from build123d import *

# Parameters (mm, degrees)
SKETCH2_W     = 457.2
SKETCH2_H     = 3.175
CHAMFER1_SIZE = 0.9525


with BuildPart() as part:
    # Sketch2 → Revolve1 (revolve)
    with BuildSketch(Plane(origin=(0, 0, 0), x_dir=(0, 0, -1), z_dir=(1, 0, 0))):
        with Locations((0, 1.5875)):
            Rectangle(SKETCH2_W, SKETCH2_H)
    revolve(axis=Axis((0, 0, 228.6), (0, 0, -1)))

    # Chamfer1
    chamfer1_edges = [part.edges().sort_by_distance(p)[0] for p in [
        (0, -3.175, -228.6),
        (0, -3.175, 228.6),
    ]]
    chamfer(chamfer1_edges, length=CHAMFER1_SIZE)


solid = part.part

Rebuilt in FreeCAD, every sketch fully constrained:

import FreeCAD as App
import Part
import Sketcher
Q = App.Units.Quantity


def edges_at(feature, points):
    """Names of the edges that pass closest to the given points."""
    edges = feature.Shape.Edges
    near = lambda p: min(range(len(edges)), key=lambda i: edges[i].distToShape(Part.Vertex(*p))[0])
    return sorted({f"Edge{near(p) + 1}" for p in points})

doc = App.newDocument("Part")
body = doc.addObject("PartDesign::Body", "Body")

# Sketch on YZ plane
sketch1 = body.newObject("Sketcher::SketchObject", "Sketch")
sketch1.AttachmentSupport = (doc.getObject("YZ_Plane"), [""])
sketch1.MapMode = "FlatFace"
sketch1.addGeometry(Part.LineSegment(App.Vector(3.2, 228.6, 0), App.Vector(0, 228.6, 0)), False)
sketch1.addGeometry(Part.LineSegment(App.Vector(0, 228.6, 0), App.Vector(0, -228.6, 0)), False)
sketch1.addGeometry(Part.LineSegment(App.Vector(0, -228.6, 0), App.Vector(3.2, -228.6, 0)), False)
sketch1.addGeometry(Part.LineSegment(App.Vector(3.2, -228.6, 0), App.Vector(3.2, 228.6, 0)), False)
sketch1.addConstraint(Sketcher.Constraint("Coincident", 0, 2, 1, 1))
sketch1.addConstraint(Sketcher.Constraint("Coincident", 1, 2, 2, 1))
sketch1.addConstraint(Sketcher.Constraint("Coincident", 2, 2, 3, 1))
sketch1.addConstraint(Sketcher.Constraint("Coincident", 3, 2, 0, 1))
sketch1.addConstraint(Sketcher.Constraint("Horizontal", 0))
sketch1.addConstraint(Sketcher.Constraint("Vertical", 1))
sketch1.addConstraint(Sketcher.Constraint("Horizontal", 2))
sketch1.addConstraint(Sketcher.Constraint("Vertical", 3))
sketch1.addConstraint(Sketcher.Constraint("Symmetric", 0, 2, 1, 2, -1, 1))
sketch1.addConstraint(Sketcher.Constraint("DistanceY", 1, 2, 1, 1, Q("18 in")))
sketch1.addConstraint(Sketcher.Constraint("DistanceX", 0, 2, 0, 1, Q("0.125 in")))
revolution = body.newObject("PartDesign::Revolution", "Revolution")
revolution.Profile = sketch1
revolution.ReferenceAxis = (sketch1, ["V_Axis"])
revolution.Angle = 360
doc.recompute()

chamfer = body.newObject("PartDesign::Chamfer", "Chamfer")
chamfer.Base = (revolution, edges_at(revolution, [(0, -3.175, -228.6), (0, -3.175, 228.6)]))
chamfer.Size = Q("0.0375 in")

doc.recompute()
